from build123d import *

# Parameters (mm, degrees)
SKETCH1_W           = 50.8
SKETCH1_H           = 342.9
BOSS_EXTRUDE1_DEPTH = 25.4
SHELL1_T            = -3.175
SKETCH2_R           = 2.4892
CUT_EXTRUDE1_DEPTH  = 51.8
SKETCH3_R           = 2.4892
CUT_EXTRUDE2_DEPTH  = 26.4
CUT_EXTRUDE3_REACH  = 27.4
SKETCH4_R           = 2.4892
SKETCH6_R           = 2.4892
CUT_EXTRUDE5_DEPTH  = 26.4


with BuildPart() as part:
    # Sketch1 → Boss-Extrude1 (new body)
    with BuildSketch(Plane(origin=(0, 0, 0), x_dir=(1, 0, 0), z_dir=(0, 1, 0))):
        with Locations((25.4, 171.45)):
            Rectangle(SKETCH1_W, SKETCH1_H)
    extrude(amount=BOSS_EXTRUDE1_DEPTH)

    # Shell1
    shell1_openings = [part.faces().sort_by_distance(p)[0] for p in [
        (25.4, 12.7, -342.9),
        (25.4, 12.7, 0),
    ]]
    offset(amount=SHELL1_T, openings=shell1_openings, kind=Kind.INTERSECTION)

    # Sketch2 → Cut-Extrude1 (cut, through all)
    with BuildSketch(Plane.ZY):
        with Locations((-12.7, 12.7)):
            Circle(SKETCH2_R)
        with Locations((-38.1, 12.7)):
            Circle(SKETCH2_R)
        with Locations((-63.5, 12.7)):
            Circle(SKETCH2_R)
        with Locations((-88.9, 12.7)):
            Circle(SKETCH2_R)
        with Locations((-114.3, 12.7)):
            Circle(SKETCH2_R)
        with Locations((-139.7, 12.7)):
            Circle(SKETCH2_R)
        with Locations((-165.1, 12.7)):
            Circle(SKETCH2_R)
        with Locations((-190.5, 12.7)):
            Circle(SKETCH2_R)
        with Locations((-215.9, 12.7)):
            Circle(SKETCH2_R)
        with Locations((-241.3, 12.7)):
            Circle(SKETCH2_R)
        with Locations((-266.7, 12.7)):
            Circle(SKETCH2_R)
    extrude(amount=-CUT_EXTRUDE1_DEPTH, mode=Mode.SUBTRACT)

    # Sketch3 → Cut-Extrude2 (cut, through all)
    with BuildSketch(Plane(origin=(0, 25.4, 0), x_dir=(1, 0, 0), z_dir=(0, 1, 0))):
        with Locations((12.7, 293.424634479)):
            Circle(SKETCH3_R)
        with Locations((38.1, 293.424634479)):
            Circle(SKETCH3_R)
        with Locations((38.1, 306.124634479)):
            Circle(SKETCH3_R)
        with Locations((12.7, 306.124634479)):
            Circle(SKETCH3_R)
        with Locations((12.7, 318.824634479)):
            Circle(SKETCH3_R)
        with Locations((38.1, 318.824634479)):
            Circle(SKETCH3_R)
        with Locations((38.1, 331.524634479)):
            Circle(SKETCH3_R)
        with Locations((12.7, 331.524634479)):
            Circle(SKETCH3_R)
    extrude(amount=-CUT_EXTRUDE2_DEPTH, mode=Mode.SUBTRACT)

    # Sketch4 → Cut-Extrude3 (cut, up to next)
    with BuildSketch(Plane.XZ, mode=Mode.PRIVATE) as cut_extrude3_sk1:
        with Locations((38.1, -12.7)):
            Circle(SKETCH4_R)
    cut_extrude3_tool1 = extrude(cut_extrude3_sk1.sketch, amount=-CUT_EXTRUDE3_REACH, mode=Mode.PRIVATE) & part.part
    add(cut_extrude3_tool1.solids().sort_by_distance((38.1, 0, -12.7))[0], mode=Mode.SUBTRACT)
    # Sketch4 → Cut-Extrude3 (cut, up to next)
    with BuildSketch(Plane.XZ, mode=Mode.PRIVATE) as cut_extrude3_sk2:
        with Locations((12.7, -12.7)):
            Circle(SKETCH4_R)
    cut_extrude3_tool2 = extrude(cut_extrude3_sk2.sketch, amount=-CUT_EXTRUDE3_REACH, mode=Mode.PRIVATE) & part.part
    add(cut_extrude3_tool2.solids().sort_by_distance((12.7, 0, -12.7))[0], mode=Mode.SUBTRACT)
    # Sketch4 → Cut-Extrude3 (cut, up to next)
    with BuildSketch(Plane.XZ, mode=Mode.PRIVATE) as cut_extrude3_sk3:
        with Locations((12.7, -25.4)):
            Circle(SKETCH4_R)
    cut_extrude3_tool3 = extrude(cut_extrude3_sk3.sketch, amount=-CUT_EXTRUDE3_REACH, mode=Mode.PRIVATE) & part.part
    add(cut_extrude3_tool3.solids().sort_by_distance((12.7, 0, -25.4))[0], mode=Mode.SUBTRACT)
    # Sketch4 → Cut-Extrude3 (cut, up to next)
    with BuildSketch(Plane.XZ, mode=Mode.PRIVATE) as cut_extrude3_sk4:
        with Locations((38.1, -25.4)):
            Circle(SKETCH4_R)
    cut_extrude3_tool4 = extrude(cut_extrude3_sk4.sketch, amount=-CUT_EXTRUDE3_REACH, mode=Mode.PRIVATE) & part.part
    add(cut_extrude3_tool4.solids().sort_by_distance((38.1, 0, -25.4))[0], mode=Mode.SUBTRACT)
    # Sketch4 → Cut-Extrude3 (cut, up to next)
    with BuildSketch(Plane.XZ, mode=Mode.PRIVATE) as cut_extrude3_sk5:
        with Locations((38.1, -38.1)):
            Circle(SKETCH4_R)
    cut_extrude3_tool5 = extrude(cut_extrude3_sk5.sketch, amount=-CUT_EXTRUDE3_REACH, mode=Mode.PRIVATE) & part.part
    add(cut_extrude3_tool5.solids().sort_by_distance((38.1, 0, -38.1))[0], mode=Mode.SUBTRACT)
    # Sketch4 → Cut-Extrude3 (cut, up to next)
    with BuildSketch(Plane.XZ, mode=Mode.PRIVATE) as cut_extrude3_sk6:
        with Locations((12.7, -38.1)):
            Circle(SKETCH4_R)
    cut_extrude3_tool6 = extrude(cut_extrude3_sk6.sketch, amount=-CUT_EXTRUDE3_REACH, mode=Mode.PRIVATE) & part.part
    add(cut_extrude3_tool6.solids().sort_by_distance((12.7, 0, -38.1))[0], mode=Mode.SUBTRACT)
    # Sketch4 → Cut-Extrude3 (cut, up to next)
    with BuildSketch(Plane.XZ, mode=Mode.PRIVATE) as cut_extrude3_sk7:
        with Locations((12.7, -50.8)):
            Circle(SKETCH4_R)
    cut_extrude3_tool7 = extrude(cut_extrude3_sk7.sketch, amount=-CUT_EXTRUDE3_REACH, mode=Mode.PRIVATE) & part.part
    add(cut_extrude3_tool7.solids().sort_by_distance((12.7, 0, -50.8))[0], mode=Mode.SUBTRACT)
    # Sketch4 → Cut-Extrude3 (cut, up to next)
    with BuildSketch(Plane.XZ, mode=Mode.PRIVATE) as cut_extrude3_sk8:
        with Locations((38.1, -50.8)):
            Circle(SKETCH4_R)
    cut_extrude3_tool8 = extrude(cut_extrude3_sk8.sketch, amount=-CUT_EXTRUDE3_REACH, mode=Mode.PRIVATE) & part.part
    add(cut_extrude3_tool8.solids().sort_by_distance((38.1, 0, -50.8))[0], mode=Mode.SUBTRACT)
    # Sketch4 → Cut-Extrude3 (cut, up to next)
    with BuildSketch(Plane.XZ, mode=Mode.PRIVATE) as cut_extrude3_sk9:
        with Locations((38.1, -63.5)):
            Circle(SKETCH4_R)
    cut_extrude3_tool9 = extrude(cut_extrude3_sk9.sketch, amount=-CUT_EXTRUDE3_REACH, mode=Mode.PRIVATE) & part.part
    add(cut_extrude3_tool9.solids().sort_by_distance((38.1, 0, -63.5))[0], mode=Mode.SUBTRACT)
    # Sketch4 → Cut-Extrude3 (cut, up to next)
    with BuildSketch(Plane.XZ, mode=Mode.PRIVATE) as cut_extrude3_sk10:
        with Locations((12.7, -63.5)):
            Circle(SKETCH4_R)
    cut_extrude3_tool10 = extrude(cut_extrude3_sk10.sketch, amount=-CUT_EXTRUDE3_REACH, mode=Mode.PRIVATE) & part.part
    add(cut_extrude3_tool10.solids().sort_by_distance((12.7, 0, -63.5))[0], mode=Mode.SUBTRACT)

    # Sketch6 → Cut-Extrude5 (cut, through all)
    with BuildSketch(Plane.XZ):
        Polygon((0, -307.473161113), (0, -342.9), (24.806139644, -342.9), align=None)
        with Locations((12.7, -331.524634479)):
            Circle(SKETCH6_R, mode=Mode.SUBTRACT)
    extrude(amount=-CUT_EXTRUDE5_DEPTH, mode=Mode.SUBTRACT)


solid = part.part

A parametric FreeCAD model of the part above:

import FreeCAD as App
import Part
import Sketcher

V = App.Vector
Q = App.Units.Quantity


def faces_at(feature, points):
    """Names of the faces that lie closest to the given points."""
    faces = feature.Shape.Faces
    near = lambda p: min(range(len(faces)), key=lambda i: faces[i].distToShape(Part.Vertex(*p))[0])
    return sorted({f"Face{near(p) + 1}" for p in points})


def add_polygon(sketch, points):
    """Adds a closed chain of lines whose ends are joined by coincident constraints."""
    first, n = sketch.GeometryCount, len(points)
    for a, b in zip(points, points[1:] + points[:1]):
        sketch.addGeometry(Part.LineSegment(App.Vector(*a, 0), App.Vector(*b, 0)), False)
    for i in range(n):
        sketch.addConstraint(Sketcher.Constraint("Coincident", first + i, 2, first + (i + 1) % n, 1))

doc = App.newDocument("Part")
body = doc.addObject("PartDesign::Body", "Body")

# Sketch on XZ plane
sketch1 = body.newObject("Sketcher::SketchObject", "Sketch")
sketch1.AttachmentSupport = (doc.getObject("XZ_Plane"), [""])
sketch1.MapMode = "FlatFace"
add_polygon(sketch1, [(0, -343), (0, 0), (51, 0), (51, -343)])  # lines 0-3
sketch1.addConstraint(Sketcher.Constraint("Vertical", 0))
sketch1.addConstraint(Sketcher.Constraint("Horizontal", 1))
sketch1.addConstraint(Sketcher.Constraint("Vertical", 2))
sketch1.addConstraint(Sketcher.Constraint("Horizontal", 3))
sketch1.addConstraint(Sketcher.Constraint("Coincident", 0, 2, -1, 1))
sketch1.addConstraint(Sketcher.Constraint("DistanceX", 1, 1, 1, 2, Q("2 in")))
sketch1.addConstraint(Sketcher.Constraint("DistanceY", 0, 1, 0, 2, Q("13.5 in")))
pad1 = body.newObject("PartDesign::Pad", "Pad")
pad1.Profile = sketch1
pad1.Length = Q("1 in")
pad1.Reversed = True
doc.recompute()

thickness = body.newObject("PartDesign::Thickness", "Thickness")
thickness.Base = (pad1, faces_at(pad1, [(25.4, 12.7, -342.9), (25.4, 12.7, 0)]))
thickness.Value = Q("0.125 in")
thickness.Reversed = True
thickness.Join = "Intersection"

# Sketch on YZ plane
sketch2 = body.newObject("Sketcher::SketchObject", "Sketch001")
sketch2.AttachmentSupport = (doc.getObject("YZ_Plane"), [""])
sketch2.MapMode = "FlatFace"
sketch2.addGeometry(Part.Circle(V(12.7, -12.7, 0), V(0, 0, 1), 2.5), False)
sketch2.addGeometry(Part.Circle(V(12.7, -38.1, 0), V(0, 0, 1), 2.5), False)
sketch2.addGeometry(Part.Circle(V(12.7, -63.5, 0), V(0, 0, 1), 2.5), False)
sketch2.addGeometry(Part.Circle(V(12.7, -88.9, 0), V(0, 0, 1), 2.5), False)
sketch2.addGeometry(Part.Circle(V(12.7, -114.3, 0), V(0, 0, 1), 2.5), False)
sketch2.addGeometry(Part.Circle(V(12.7, -139.7, 0), V(0, 0, 1), 2.5), False)
sketch2.addGeometry(Part.Circle(V(12.7, -165.1, 0), V(0, 0, 1), 2.5), False)
sketch2.addGeometry(Part.Circle(V(12.7, -190.5, 0), V(0, 0, 1), 2.5), False)
sketch2.addGeometry(Part.Circle(V(12.7, -215.9, 0), V(0, 0, 1), 2.5), False)
sketch2.addGeometry(Part.Circle(V(12.7, -241.3, 0), V(0, 0, 1), 2.5), False)
sketch2.addGeometry(Part.Circle(V(12.7, -266.7, 0), V(0, 0, 1), 2.5), False)
sketch2.addConstraint(Sketcher.Constraint("Equal", 0, 1))
sketch2.addConstraint(Sketcher.Constraint("Equal", 1, 2))
sketch2.addConstraint(Sketcher.Constraint("Equal", 2, 3))
sketch2.addConstraint(Sketcher.Constraint("Equal", 3, 4))
sketch2.addConstraint(Sketcher.Constraint("Equal", 4, 5))
sketch2.addConstraint(Sketcher.Constraint("Equal", 5, 6))
sketch2.addConstraint(Sketcher.Constraint("Equal", 6, 7))
sketch2.addConstraint(Sketcher.Constraint("Equal", 7, 8))
sketch2.addConstraint(Sketcher.Constraint("Equal", 8, 9))
sketch2.addConstraint(Sketcher.Constraint("Equal", 9, 10))
sketch2.addConstraint(Sketcher.Constraint("Vertical", 0, 3, 1, 3))
sketch2.addConstraint(Sketcher.Constraint("Vertical", 1, 3, 2, 3))
sketch2.addConstraint(Sketcher.Constraint("Vertical", 2, 3, 3, 3))
sketch2.addConstraint(Sketcher.Constraint("Vertical", 3, 3, 4, 3))
sketch2.addConstraint(Sketcher.Constraint("Vertical", 4, 3, 5, 3))
sketch2.addConstraint(Sketcher.Constraint("Vertical", 5, 3, 6, 3))
sketch2.addConstraint(Sketcher.Constraint("Vertical", 6, 3, 7, 3))
sketch2.addConstraint(Sketcher.Constraint("Vertical", 7, 3, 8, 3))
sketch2.addConstraint(Sketcher.Constraint("Vertical", 8, 3, 9, 3))
sketch2.addConstraint(Sketcher.Constraint("Vertical", 9, 3, 10, 3))
sketch2.addConstraint(Sketcher.Constraint("Diameter", 0, Q("0.196 in")))
sketch2.addConstraint(Sketcher.Constraint("DistanceY", 1, 3, 0, 3, Q("1 in")))
sketch2.addConstraint(Sketcher.Constraint("DistanceY", 2, 3, 1, 3, Q("1 in")))
sketch2.addConstraint(Sketcher.Constraint("DistanceY", 3, 3, 2, 3, Q("1 in")))
sketch2.addConstraint(Sketcher.Constraint("DistanceY", 4, 3, 3, 3, Q("1 in")))
sketch2.addConstraint(Sketcher.Constraint("DistanceY", 5, 3, 4, 3, Q("1 in")))
sketch2.addConstraint(Sketcher.Constraint("DistanceY", 6, 3, 5, 3, Q("1 in")))
sketch2.addConstraint(Sketcher.Constraint("DistanceY", 7, 3, 6, 3, Q("1 in")))
sketch2.addConstraint(Sketcher.Constraint("DistanceY", 8, 3, 7, 3, Q("1 in")))
sketch2.addConstraint(Sketcher.Constraint("DistanceY", 9, 3, 8, 3, Q("1 in")))
sketch2.addConstraint(Sketcher.Constraint("DistanceY", 10, 3, 9, 3, Q("1 in")))
sketch2.addConstraint(Sketcher.Constraint("DistanceX", -1, 1, 0, 3, Q("0.5 in")))
sketch2.addConstraint(Sketcher.Constraint("DistanceY", 0, 3, -1, 1, Q("0.5 in")))
pocket1 = body.newObject("PartDesign::Pocket", "Pocket")
pocket1.Profile = sketch2
pocket1.Type = "ThroughAll"
pocket1.Reversed = True

# Sketch on XZ plane
sketch3 = body.newObject("Sketcher::SketchObject", "Sketch002")
sketch3.AttachmentSupport = (doc.getObject("XZ_Plane"), [""])
sketch3.MapMode = "FlatFace"
sketch3.AttachmentOffset = App.Placement(V(0, 0, -1 * 25.4), App.Rotation())
sketch3.addGeometry(Part.Circle(V(12.7, -293.4, 0), V(0, 0, 1), 2.5), False)
sketch3.addGeometry(Part.Circle(V(38.1, -293.4, 0), V(0, 0, 1), 2.5), False)
sketch3.addGeometry(Part.Circle(V(38.1, -306.1, 0), V(0, 0, 1), 2.5), False)
sketch3.addGeometry(Part.Circle(V(12.7, -306.1, 0), V(0, 0, 1), 2.5), False)
sketch3.addGeometry(Part.Circle(V(12.7, -318.8, 0), V(0, 0, 1), 2.5), False)
sketch3.addGeometry(Part.Circle(V(38.1, -318.8, 0), V(0, 0, 1), 2.5), False)
sketch3.addGeometry(Part.Circle(V(38.1, -331.5, 0), V(0, 0, 1), 2.5), False)
sketch3.addGeometry(Part.Circle(V(12.7, -331.5, 0), V(0, 0, 1), 2.5), False)
sketch3.addConstraint(Sketcher.Constraint("Equal", 0, 1))
sketch3.addConstraint(Sketcher.Constraint("Equal", 1, 2))
sketch3.addConstraint(Sketcher.Constraint("Equal", 2, 3))
sketch3.addConstraint(Sketcher.Constraint("Equal", 3, 4))
sketch3.addConstraint(Sketcher.Constraint("Equal", 4, 5))
sketch3.addConstraint(Sketcher.Constraint("Equal", 5, 6))
sketch3.addConstraint(Sketcher.Constraint("Equal", 6, 7))
sketch3.addConstraint(Sketcher.Constraint("Horizontal", 0, 3, 1, 3))
sketch3.addConstraint(Sketcher.Constraint("Horizontal", 2, 3, 3, 3))
sketch3.addConstraint(Sketcher.Constraint("Horizontal", 4, 3, 5, 3))
sketch3.addConstraint(Sketcher.Constraint("Horizontal", 6, 3, 7, 3))
sketch3.addConstraint(Sketcher.Constraint("Vertical", 1, 3, 2, 3))
sketch3.addConstraint(Sketcher.Constraint("Vertical", 0, 3, 3, 3))
sketch3.addConstraint(Sketcher.Constraint("Vertical", 3, 3, 4, 3))
sketch3.addConstraint(Sketcher.Constraint("Vertical", 2, 3, 5, 3))
sketch3.addConstraint(Sketcher.Constraint("Vertical", 5, 3, 6, 3))
sketch3.addConstraint(Sketcher.Constraint("Vertical", 4, 3, 7, 3))
sketch3.addConstraint(Sketcher.Constraint("Diameter", 0, Q("0.196 in")))
sketch3.addConstraint(Sketcher.Constraint("DistanceX", 0, 3, 1, 3, Q("1 in")))
sketch3.addConstraint(Sketcher.Constraint("DistanceY", 4, 3, 0, 3, Q("1 in")))
sketch3.addConstraint(Sketcher.Constraint("DistanceY", 6, 3, 2, 3, Q("1 in")))
sketch3.addConstraint(Sketcher.Constraint("DistanceX", -1, 1, 0, 3, Q("0.5 in")))
sketch3.addConstraint(Sketcher.Constraint("DistanceY", 2, 3, 1, 3, Q("0.5 in")))
sketch3.addConstraint(Sketcher.Constraint("DistanceY", 0, 3, -1, 1, Q("293.424634 mm")))
pocket2 = body.newObject("PartDesign::Pocket", "Pocket001")
pocket2.Profile = sketch3
pocket2.Type = "ThroughAll"
pocket2.Reversed = True

# Sketch on XZ plane
sketch4 = body.newObject("Sketcher::SketchObject", "Sketch003")
sketch4.AttachmentSupport = (doc.getObject("XZ_Plane"), [""])
sketch4.MapMode = "FlatFace"
sketch4.addGeometry(Part.Circle(V(38.1, -12.7, 0), V(0, 0, 1), 2.5), False)
sketch4.addConstraint(Sketcher.Constraint("Diameter", 0, Q("0.196 in")))
sketch4.addConstraint(Sketcher.Constraint("DistanceX", -1, 1, 0, 3, Q("1.5 in")))
sketch4.addConstraint(Sketcher.Constraint("DistanceY", 0, 3, -1, 1, Q("0.5 in")))
pocket3 = body.newObject("PartDesign::Pocket", "Pocket002")
pocket3.Profile = sketch4
pocket3.Type = "UpToFirst"

# Sketch on XZ plane
sketch5 = body.newObject("Sketcher::SketchObject", "Sketch004")
sketch5.AttachmentSupport = (doc.getObject("XZ_Plane"), [""])
sketch5.MapMode = "FlatFace"
sketch5.addGeometry(Part.Circle(V(12.7, -12.7, 0), V(0, 0, 1), 2.5), False)
sketch5.addConstraint(Sketcher.Constraint("Diameter", 0, Q("0.196 in")))
sketch5.addConstraint(Sketcher.Constraint("DistanceX", -1, 1, 0, 3, Q("0.5 in")))
sketch5.addConstraint(Sketcher.Constraint("DistanceY", 0, 3, -1, 1, Q("0.5 in")))
pocket4 = body.newObject("PartDesign::Pocket", "Pocket003")
pocket4.Profile = sketch5
pocket4.Type = "UpToFirst"

# Sketch on XZ plane
sketch6 = body.newObject("Sketcher::SketchObject", "Sketch005")
sketch6.AttachmentSupport = (doc.getObject("XZ_Plane"), [""])
sketch6.MapMode = "FlatFace"
sketch6.addGeometry(Part.Circle(V(12.7, -25.4, 0), V(0, 0, 1), 2.5), False)
sketch6.addConstraint(Sketcher.Constraint("Diameter", 0, Q("0.196 in")))
sketch6.addConstraint(Sketcher.Constraint("DistanceY", 0, 3, -1, 1, Q("1 in")))
sketch6.addConstraint(Sketcher.Constraint("DistanceX", -1, 1, 0, 3, Q("0.5 in")))
pocket5 = body.newObject("PartDesign::Pocket", "Pocket004")
pocket5.Profile = sketch6
pocket5.Type = "UpToFirst"

# Sketch on XZ plane
sketch7 = body.newObject("Sketcher::SketchObject", "Sketch006")
sketch7.AttachmentSupport = (doc.getObject("XZ_Plane"), [""])
sketch7.MapMode = "FlatFace"
sketch7.addGeometry(Part.Circle(V(38.1, -25.4, 0), V(0, 0, 1), 2.5), False)
sketch7.addConstraint(Sketcher.Constraint("Diameter", 0, Q("0.196 in")))
sketch7.addConstraint(Sketcher.Constraint("DistanceY", 0, 3, -1, 1, Q("1 in")))
sketch7.addConstraint(Sketcher.Constraint("DistanceX", -1, 1, 0, 3, Q("1.5 in")))
pocket6 = body.newObject("PartDesign::Pocket", "Pocket005")
pocket6.Profile = sketch7
pocket6.Type = "UpToFirst"

# Sketch on XZ plane
sketch8 = body.newObject("Sketcher::SketchObject", "Sketch007")
sketch8.AttachmentSupport = (doc.getObject("XZ_Plane"), [""])
sketch8.MapMode = "FlatFace"
sketch8.addGeometry(Part.Circle(V(38.1, -38.1, 0), V(0, 0, 1), 2.5), False)
sketch8.addConstraint(Sketcher.Constraint("Diameter", 0, Q("0.196 in")))
sketch8.addConstraint(Sketcher.Constraint("DistanceX", -1, 1, 0, 3, Q("1.5 in")))
sketch8.addConstraint(Sketcher.Constraint("DistanceY", 0, 3, -1, 1, Q("1.5 in")))
pocket7 = body.newObject("PartDesign::Pocket", "Pocket006")
pocket7.Profile = sketch8
pocket7.Type = "UpToFirst"

# Sketch on XZ plane
sketch9 = body.newObject("Sketcher::SketchObject", "Sketch008")
sketch9.AttachmentSupport = (doc.getObject("XZ_Plane"), [""])
sketch9.MapMode = "FlatFace"
sketch9.addGeometry(Part.Circle(V(12.7, -38.1, 0), V(0, 0, 1), 2.5), False)
sketch9.addConstraint(Sketcher.Constraint("Diameter", 0, Q("0.196 in")))
sketch9.addConstraint(Sketcher.Constraint("DistanceX", -1, 1, 0, 3, Q("0.5 in")))
sketch9.addConstraint(Sketcher.Constraint("DistanceY", 0, 3, -1, 1, Q("1.5 in")))
pocket8 = body.newObject("PartDesign::Pocket", "Pocket007")
pocket8.Profile = sketch9
pocket8.Type = "UpToFirst"

# Sketch on XZ plane
sketch10 = body.newObject("Sketcher::SketchObject", "Sketch009")
sketch10.AttachmentSupport = (doc.getObject("XZ_Plane"), [""])
sketch10.MapMode = "FlatFace"
sketch10.addGeometry(Part.Circle(V(12.7, -50.8, 0), V(0, 0, 1), 2.5), False)
sketch10.addConstraint(Sketcher.Constraint("Diameter", 0, Q("0.196 in")))
sketch10.addConstraint(Sketcher.Constraint("DistanceY", 0, 3, -1, 1, Q("2 in")))
sketch10.addConstraint(Sketcher.Constraint("DistanceX", -1, 1, 0, 3, Q("0.5 in")))
pocket9 = body.newObject("PartDesign::Pocket", "Pocket008")
pocket9.Profile = sketch10
pocket9.Type = "UpToFirst"

# Sketch on XZ plane
sketch11 = body.newObject("Sketcher::SketchObject", "Sketch010")
sketch11.AttachmentSupport = (doc.getObject("XZ_Plane"), [""])
sketch11.MapMode = "FlatFace"
sketch11.addGeometry(Part.Circle(V(38.1, -50.8, 0), V(0, 0, 1), 2.5), False)
sketch11.addConstraint(Sketcher.Constraint("Diameter", 0, Q("0.196 in")))
sketch11.addConstraint(Sketcher.Constraint("DistanceY", 0, 3, -1, 1, Q("2 in")))
sketch11.addConstraint(Sketcher.Constraint("DistanceX", -1, 1, 0, 3, Q("1.5 in")))
pocket10 = body.newObject("PartDesign::Pocket", "Pocket009")
pocket10.Profile = sketch11
pocket10.Type = "UpToFirst"

# Sketch on XZ plane
sketch12 = body.newObject("Sketcher::SketchObject", "Sketch011")
sketch12.AttachmentSupport = (doc.getObject("XZ_Plane"), [""])
sketch12.MapMode = "FlatFace"
sketch12.addGeometry(Part.Circle(V(38.1, -63.5, 0), V(0, 0, 1), 2.5), False)
sketch12.addConstraint(Sketcher.Constraint("Diameter", 0, Q("0.196 in")))
sketch12.addConstraint(Sketcher.Constraint("DistanceX", -1, 1, 0, 3, Q("1.5 in")))
sketch12.addConstraint(Sketcher.Constraint("DistanceY", 0, 3, -1, 1, Q("2.5 in")))
pocket11 = body.newObject("PartDesign::Pocket", "Pocket010")
pocket11.Profile = sketch12
pocket11.Type = "UpToFirst"

# Sketch on XZ plane
sketch13 = body.newObject("Sketcher::SketchObject", "Sketch012")
sketch13.AttachmentSupport = (doc.getObject("XZ_Plane"), [""])
sketch13.MapMode = "FlatFace"
sketch13.addGeometry(Part.Circle(V(12.7, -63.5, 0), V(0, 0, 1), 2.5), False)
sketch13.addConstraint(Sketcher.Constraint("Diameter", 0, Q("0.196 in")))
sketch13.addConstraint(Sketcher.Constraint("DistanceX", -1, 1, 0, 3, Q("0.5 in")))
sketch13.addConstraint(Sketcher.Constraint("DistanceY", 0, 3, -1, 1, Q("2.5 in")))
pocket12 = body.newObject("PartDesign::Pocket", "Pocket011")
pocket12.Profile = sketch13
pocket12.Type = "UpToFirst"

# Sketch on XZ plane
sketch14 = body.newObject("Sketcher::SketchObject", "Sketch013")
sketch14.AttachmentSupport = (doc.getObject("XZ_Plane"), [""])
sketch14.MapMode = "FlatFace"
add_polygon(sketch14, [(0, -307.5), (0, -342.9), (24.8, -342.9)])  # lines 0-2
sketch14.addGeometry(Part.Circle(V(12.7, -331.5, 0), V(0, 0, 1), 2.5), False)  # 3
sketch14.addConstraint(Sketcher.Constraint("Vertical", 0))
sketch14.addConstraint(Sketcher.Constraint("Horizontal", 1))
sketch14.addConstraint(Sketcher.Constraint("PointOnObject", 0, 2, -2))
sketch14.addConstraint(Sketcher.Constraint("Diameter", 3, Q("0.196 in")))
sketch14.addConstraint(Sketcher.Constraint("Angle", 2, Q("125 deg")))
sketch14.addConstraint(Sketcher.Constraint("DistanceX", -1, 1, 3, 3, Q("0.5 in")))
sketch14.addConstraint(Sketcher.Constraint("DistanceY", 0, 2, -1, 1, Q("13.5 in")))
sketch14.addConstraint(Sketcher.Constraint("DistanceX", 1, 1, 1, 2, Q("24.80614 mm")))
sketch14.addConstraint(Sketcher.Constraint("DistanceY", 3, 3, -1, 1, Q("331.524634 mm")))
pocket13 = body.newObject("PartDesign::Pocket", "Pocket012")
pocket13.Profile = sketch14
pocket13.Type = "ThroughAll"

doc.recompute()
